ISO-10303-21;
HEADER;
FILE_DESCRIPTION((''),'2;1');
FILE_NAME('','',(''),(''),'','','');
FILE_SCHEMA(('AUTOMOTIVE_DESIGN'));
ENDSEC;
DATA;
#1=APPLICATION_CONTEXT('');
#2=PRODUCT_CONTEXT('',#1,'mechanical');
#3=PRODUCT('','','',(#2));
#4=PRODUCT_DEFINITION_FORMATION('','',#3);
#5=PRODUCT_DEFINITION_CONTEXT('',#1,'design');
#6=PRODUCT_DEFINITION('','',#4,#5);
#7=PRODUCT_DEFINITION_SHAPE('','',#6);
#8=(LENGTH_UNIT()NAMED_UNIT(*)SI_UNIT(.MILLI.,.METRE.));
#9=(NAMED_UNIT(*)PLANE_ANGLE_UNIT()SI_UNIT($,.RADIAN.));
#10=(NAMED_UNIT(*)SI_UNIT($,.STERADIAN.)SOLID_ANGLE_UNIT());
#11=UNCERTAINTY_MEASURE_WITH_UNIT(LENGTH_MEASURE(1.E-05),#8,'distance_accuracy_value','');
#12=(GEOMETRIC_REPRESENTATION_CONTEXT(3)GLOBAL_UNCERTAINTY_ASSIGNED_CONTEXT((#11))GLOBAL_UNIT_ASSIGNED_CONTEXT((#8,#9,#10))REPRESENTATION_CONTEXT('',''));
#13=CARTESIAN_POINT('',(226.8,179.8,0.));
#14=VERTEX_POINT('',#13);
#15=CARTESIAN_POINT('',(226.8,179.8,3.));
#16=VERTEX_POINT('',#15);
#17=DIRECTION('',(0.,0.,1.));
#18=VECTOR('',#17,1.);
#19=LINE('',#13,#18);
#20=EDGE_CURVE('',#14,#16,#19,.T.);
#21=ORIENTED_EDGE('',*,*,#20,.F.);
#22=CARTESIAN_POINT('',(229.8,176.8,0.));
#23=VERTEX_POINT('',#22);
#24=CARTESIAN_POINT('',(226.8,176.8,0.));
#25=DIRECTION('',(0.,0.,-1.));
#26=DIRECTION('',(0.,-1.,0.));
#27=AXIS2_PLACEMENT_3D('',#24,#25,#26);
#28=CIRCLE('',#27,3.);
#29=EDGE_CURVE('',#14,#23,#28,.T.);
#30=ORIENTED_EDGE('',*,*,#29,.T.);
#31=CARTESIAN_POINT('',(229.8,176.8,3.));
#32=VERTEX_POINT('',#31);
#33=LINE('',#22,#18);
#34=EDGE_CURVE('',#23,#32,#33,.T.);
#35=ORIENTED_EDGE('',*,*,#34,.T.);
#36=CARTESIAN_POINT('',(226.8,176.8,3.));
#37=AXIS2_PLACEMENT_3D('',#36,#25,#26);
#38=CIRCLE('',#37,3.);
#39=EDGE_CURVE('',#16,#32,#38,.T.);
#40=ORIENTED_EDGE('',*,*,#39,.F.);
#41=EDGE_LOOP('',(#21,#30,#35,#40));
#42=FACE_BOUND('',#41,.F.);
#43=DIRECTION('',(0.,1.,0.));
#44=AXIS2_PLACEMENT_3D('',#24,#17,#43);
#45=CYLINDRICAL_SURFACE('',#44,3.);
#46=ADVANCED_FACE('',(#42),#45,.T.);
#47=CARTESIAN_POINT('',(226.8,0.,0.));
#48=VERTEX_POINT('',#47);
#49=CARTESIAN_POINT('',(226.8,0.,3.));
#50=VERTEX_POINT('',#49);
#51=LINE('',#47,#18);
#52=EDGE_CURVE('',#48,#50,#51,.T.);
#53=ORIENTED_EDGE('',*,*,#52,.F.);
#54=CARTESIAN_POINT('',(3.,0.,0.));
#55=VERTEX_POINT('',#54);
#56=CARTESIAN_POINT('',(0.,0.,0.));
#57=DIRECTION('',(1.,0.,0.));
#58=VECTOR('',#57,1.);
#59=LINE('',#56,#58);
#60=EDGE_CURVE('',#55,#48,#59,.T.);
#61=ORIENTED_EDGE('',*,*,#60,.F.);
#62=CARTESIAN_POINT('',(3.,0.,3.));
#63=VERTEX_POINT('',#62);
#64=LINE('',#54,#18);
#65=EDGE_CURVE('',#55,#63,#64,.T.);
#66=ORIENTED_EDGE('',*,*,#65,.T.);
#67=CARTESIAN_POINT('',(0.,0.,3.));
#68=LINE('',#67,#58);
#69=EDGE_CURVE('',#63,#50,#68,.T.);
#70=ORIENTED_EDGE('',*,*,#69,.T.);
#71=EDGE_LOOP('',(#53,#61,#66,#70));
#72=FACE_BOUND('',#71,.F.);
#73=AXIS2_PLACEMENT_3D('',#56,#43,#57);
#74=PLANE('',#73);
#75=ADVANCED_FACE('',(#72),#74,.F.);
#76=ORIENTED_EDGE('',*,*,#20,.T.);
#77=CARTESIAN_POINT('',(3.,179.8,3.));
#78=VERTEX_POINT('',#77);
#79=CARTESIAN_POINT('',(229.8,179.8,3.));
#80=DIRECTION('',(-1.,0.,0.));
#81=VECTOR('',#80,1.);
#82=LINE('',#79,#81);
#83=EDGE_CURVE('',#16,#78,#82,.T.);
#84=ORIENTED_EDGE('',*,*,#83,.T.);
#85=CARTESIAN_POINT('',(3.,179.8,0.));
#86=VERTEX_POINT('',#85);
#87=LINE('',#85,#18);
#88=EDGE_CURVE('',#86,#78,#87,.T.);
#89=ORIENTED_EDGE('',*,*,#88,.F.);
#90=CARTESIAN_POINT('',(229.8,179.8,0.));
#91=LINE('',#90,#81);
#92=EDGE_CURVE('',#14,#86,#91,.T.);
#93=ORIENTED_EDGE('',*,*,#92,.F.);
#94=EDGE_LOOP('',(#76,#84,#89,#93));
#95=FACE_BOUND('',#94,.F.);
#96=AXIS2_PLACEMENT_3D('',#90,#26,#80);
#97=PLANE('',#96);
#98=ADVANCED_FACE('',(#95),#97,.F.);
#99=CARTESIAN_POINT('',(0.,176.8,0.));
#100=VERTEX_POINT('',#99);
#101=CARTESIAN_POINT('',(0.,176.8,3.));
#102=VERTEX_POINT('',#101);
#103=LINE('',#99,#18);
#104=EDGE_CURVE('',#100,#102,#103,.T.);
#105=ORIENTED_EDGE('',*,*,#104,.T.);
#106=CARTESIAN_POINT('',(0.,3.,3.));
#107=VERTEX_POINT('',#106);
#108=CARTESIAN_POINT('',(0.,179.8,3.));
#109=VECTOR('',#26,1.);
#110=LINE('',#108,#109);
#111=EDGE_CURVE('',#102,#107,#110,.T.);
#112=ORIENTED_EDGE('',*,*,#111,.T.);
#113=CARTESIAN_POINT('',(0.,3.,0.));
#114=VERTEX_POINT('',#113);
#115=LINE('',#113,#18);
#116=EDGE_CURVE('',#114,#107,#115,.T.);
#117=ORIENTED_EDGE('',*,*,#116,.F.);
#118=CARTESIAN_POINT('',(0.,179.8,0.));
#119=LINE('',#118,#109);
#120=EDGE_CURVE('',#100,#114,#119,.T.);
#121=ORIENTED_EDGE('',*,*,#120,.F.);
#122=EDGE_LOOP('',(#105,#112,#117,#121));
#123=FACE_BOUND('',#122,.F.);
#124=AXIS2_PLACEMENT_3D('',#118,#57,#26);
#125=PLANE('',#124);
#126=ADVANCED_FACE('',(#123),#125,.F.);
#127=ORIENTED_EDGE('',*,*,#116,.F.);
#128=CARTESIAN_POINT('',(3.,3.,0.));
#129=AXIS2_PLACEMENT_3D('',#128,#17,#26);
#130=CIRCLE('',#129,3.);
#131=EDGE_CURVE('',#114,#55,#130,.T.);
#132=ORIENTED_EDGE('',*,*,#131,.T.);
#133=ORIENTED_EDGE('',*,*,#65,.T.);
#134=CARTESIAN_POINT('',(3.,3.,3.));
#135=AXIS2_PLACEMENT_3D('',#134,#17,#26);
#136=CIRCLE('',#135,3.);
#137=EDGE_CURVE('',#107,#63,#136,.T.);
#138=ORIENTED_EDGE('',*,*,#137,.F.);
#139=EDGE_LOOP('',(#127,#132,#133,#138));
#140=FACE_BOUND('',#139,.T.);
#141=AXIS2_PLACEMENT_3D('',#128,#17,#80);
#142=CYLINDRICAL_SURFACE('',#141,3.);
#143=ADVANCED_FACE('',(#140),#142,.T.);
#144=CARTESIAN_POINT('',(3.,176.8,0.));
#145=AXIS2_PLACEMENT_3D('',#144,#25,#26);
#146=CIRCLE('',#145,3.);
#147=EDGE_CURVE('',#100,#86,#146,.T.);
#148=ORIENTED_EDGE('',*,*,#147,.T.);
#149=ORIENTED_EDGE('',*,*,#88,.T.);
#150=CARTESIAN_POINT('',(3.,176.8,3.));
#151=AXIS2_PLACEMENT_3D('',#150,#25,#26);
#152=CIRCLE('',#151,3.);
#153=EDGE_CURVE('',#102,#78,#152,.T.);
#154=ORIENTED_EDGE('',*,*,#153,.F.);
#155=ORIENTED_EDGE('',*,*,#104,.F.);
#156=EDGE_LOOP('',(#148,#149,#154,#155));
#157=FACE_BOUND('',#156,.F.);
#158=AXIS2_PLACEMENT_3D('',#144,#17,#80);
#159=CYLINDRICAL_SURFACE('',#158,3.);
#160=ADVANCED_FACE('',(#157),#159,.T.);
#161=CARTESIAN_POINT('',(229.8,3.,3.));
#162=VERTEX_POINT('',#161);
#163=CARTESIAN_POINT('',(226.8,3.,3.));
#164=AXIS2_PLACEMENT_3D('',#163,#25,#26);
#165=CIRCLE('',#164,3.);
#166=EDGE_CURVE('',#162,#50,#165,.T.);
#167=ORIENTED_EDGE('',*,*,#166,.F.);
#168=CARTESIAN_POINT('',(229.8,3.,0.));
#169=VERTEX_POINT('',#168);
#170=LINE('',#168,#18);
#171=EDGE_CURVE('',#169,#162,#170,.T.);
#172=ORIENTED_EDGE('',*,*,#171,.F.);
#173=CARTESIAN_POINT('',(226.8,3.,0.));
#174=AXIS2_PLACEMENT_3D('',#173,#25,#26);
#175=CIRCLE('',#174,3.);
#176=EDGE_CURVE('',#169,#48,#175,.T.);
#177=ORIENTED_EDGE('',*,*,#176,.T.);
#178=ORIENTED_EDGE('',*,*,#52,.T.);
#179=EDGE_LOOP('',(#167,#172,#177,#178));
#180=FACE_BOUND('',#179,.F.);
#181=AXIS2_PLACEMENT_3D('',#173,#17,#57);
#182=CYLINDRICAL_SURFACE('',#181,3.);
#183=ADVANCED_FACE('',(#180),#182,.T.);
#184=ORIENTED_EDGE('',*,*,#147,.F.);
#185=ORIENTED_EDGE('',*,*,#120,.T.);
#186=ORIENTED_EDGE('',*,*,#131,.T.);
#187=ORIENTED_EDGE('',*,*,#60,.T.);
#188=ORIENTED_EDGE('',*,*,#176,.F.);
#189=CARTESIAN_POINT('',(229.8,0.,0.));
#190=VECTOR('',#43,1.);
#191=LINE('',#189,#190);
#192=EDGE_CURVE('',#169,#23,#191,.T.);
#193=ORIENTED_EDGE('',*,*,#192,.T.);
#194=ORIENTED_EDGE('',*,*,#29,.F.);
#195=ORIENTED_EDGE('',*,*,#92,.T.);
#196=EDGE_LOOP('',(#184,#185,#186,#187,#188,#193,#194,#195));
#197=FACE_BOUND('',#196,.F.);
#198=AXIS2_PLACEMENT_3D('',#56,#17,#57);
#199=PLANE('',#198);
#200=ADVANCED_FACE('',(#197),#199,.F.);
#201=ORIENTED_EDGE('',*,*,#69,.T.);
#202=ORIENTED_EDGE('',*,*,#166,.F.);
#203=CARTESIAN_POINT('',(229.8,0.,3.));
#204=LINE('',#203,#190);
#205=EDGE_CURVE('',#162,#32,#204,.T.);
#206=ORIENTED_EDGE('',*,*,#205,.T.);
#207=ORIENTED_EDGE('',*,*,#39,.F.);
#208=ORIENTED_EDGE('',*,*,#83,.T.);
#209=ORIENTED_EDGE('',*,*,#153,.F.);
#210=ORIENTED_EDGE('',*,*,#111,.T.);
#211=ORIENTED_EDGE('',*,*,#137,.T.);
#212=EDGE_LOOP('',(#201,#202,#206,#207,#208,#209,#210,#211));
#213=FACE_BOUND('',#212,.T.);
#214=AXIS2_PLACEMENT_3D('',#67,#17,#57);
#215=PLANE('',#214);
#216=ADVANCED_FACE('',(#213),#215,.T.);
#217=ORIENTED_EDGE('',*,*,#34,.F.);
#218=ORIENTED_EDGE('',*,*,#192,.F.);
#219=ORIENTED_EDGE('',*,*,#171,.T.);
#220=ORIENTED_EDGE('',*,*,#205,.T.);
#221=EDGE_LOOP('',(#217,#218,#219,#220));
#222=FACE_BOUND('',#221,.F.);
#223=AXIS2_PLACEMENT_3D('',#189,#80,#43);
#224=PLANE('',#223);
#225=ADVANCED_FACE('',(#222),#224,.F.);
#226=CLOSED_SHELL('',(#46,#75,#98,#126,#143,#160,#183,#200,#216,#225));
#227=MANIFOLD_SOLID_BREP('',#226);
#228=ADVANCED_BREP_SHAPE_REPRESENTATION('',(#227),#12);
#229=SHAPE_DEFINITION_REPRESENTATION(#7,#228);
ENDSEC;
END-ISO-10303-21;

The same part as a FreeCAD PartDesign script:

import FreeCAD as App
import Part
import Sketcher
from FreeCAD import Vector
Q = App.Units.Quantity


def edges_at(feature, points):
    """Names of the edges that pass closest to the given points."""
    edges = feature.Shape.Edges
    near = lambda p: min(range(len(edges)), key=lambda i: edges[i].distToShape(Part.Vertex(*p))[0])
    return sorted({f"Edge{near(p) + 1}" for p in points})

doc = App.newDocument("Part")
body = doc.addObject("PartDesign::Body", "Body")

sketch1 = body.newObject("Sketcher::SketchObject", "Sketch")
sketch1.AttachmentSupport = (doc.getObject("XY_Plane"), [""])
sketch1.MapMode = "FlatFace"
sketch1.addGeometry([
    Part.LineSegment(Vector(0, 180, 0), Vector(0, 0, 0)),
    Part.LineSegment(Vector(0, 0, 0), Vector(230, 0, 0)),
    Part.LineSegment(Vector(230, 0, 0), Vector(230, 180, 0)),
    Part.LineSegment(Vector(230, 180, 0), Vector(0, 180, 0)),
], False)
sketch1.addConstraint([
    Sketcher.Constraint("Coincident", 0, 2, 1, 1),
    Sketcher.Constraint("Coincident", 1, 2, 2, 1),
    Sketcher.Constraint("Coincident", 2, 2, 3, 1),
    Sketcher.Constraint("Coincident", 3, 2, 0, 1),
    Sketcher.Constraint("Vertical", 0),
    Sketcher.Constraint("Horizontal", 1),
    Sketcher.Constraint("Vertical", 2),
    Sketcher.Constraint("Horizontal", 3),
    Sketcher.Constraint("Coincident", 0, 2, -1, 1),
    Sketcher.Constraint("DistanceX", 1, 1, 1, 2, Q("229.8 mm")),
    Sketcher.Constraint("DistanceY", 0, 2, 0, 1, Q("179.8 mm")),
])
pad1 = body.newObject("PartDesign::Pad", "Pad")
pad1.Profile = sketch1
pad1.Length = 3
doc.recompute()

fillet = body.newObject("PartDesign::Fillet", "Fillet")
fillet.Base = (pad1, edges_at(pad1, [
    (0, 179.8, 1.5),
    (229.8, 179.8, 1.5),
    (229.8, 0, 1.5),
    (0, 0, 1.5),
]))
fillet.Radius = 3

doc.recompute()
